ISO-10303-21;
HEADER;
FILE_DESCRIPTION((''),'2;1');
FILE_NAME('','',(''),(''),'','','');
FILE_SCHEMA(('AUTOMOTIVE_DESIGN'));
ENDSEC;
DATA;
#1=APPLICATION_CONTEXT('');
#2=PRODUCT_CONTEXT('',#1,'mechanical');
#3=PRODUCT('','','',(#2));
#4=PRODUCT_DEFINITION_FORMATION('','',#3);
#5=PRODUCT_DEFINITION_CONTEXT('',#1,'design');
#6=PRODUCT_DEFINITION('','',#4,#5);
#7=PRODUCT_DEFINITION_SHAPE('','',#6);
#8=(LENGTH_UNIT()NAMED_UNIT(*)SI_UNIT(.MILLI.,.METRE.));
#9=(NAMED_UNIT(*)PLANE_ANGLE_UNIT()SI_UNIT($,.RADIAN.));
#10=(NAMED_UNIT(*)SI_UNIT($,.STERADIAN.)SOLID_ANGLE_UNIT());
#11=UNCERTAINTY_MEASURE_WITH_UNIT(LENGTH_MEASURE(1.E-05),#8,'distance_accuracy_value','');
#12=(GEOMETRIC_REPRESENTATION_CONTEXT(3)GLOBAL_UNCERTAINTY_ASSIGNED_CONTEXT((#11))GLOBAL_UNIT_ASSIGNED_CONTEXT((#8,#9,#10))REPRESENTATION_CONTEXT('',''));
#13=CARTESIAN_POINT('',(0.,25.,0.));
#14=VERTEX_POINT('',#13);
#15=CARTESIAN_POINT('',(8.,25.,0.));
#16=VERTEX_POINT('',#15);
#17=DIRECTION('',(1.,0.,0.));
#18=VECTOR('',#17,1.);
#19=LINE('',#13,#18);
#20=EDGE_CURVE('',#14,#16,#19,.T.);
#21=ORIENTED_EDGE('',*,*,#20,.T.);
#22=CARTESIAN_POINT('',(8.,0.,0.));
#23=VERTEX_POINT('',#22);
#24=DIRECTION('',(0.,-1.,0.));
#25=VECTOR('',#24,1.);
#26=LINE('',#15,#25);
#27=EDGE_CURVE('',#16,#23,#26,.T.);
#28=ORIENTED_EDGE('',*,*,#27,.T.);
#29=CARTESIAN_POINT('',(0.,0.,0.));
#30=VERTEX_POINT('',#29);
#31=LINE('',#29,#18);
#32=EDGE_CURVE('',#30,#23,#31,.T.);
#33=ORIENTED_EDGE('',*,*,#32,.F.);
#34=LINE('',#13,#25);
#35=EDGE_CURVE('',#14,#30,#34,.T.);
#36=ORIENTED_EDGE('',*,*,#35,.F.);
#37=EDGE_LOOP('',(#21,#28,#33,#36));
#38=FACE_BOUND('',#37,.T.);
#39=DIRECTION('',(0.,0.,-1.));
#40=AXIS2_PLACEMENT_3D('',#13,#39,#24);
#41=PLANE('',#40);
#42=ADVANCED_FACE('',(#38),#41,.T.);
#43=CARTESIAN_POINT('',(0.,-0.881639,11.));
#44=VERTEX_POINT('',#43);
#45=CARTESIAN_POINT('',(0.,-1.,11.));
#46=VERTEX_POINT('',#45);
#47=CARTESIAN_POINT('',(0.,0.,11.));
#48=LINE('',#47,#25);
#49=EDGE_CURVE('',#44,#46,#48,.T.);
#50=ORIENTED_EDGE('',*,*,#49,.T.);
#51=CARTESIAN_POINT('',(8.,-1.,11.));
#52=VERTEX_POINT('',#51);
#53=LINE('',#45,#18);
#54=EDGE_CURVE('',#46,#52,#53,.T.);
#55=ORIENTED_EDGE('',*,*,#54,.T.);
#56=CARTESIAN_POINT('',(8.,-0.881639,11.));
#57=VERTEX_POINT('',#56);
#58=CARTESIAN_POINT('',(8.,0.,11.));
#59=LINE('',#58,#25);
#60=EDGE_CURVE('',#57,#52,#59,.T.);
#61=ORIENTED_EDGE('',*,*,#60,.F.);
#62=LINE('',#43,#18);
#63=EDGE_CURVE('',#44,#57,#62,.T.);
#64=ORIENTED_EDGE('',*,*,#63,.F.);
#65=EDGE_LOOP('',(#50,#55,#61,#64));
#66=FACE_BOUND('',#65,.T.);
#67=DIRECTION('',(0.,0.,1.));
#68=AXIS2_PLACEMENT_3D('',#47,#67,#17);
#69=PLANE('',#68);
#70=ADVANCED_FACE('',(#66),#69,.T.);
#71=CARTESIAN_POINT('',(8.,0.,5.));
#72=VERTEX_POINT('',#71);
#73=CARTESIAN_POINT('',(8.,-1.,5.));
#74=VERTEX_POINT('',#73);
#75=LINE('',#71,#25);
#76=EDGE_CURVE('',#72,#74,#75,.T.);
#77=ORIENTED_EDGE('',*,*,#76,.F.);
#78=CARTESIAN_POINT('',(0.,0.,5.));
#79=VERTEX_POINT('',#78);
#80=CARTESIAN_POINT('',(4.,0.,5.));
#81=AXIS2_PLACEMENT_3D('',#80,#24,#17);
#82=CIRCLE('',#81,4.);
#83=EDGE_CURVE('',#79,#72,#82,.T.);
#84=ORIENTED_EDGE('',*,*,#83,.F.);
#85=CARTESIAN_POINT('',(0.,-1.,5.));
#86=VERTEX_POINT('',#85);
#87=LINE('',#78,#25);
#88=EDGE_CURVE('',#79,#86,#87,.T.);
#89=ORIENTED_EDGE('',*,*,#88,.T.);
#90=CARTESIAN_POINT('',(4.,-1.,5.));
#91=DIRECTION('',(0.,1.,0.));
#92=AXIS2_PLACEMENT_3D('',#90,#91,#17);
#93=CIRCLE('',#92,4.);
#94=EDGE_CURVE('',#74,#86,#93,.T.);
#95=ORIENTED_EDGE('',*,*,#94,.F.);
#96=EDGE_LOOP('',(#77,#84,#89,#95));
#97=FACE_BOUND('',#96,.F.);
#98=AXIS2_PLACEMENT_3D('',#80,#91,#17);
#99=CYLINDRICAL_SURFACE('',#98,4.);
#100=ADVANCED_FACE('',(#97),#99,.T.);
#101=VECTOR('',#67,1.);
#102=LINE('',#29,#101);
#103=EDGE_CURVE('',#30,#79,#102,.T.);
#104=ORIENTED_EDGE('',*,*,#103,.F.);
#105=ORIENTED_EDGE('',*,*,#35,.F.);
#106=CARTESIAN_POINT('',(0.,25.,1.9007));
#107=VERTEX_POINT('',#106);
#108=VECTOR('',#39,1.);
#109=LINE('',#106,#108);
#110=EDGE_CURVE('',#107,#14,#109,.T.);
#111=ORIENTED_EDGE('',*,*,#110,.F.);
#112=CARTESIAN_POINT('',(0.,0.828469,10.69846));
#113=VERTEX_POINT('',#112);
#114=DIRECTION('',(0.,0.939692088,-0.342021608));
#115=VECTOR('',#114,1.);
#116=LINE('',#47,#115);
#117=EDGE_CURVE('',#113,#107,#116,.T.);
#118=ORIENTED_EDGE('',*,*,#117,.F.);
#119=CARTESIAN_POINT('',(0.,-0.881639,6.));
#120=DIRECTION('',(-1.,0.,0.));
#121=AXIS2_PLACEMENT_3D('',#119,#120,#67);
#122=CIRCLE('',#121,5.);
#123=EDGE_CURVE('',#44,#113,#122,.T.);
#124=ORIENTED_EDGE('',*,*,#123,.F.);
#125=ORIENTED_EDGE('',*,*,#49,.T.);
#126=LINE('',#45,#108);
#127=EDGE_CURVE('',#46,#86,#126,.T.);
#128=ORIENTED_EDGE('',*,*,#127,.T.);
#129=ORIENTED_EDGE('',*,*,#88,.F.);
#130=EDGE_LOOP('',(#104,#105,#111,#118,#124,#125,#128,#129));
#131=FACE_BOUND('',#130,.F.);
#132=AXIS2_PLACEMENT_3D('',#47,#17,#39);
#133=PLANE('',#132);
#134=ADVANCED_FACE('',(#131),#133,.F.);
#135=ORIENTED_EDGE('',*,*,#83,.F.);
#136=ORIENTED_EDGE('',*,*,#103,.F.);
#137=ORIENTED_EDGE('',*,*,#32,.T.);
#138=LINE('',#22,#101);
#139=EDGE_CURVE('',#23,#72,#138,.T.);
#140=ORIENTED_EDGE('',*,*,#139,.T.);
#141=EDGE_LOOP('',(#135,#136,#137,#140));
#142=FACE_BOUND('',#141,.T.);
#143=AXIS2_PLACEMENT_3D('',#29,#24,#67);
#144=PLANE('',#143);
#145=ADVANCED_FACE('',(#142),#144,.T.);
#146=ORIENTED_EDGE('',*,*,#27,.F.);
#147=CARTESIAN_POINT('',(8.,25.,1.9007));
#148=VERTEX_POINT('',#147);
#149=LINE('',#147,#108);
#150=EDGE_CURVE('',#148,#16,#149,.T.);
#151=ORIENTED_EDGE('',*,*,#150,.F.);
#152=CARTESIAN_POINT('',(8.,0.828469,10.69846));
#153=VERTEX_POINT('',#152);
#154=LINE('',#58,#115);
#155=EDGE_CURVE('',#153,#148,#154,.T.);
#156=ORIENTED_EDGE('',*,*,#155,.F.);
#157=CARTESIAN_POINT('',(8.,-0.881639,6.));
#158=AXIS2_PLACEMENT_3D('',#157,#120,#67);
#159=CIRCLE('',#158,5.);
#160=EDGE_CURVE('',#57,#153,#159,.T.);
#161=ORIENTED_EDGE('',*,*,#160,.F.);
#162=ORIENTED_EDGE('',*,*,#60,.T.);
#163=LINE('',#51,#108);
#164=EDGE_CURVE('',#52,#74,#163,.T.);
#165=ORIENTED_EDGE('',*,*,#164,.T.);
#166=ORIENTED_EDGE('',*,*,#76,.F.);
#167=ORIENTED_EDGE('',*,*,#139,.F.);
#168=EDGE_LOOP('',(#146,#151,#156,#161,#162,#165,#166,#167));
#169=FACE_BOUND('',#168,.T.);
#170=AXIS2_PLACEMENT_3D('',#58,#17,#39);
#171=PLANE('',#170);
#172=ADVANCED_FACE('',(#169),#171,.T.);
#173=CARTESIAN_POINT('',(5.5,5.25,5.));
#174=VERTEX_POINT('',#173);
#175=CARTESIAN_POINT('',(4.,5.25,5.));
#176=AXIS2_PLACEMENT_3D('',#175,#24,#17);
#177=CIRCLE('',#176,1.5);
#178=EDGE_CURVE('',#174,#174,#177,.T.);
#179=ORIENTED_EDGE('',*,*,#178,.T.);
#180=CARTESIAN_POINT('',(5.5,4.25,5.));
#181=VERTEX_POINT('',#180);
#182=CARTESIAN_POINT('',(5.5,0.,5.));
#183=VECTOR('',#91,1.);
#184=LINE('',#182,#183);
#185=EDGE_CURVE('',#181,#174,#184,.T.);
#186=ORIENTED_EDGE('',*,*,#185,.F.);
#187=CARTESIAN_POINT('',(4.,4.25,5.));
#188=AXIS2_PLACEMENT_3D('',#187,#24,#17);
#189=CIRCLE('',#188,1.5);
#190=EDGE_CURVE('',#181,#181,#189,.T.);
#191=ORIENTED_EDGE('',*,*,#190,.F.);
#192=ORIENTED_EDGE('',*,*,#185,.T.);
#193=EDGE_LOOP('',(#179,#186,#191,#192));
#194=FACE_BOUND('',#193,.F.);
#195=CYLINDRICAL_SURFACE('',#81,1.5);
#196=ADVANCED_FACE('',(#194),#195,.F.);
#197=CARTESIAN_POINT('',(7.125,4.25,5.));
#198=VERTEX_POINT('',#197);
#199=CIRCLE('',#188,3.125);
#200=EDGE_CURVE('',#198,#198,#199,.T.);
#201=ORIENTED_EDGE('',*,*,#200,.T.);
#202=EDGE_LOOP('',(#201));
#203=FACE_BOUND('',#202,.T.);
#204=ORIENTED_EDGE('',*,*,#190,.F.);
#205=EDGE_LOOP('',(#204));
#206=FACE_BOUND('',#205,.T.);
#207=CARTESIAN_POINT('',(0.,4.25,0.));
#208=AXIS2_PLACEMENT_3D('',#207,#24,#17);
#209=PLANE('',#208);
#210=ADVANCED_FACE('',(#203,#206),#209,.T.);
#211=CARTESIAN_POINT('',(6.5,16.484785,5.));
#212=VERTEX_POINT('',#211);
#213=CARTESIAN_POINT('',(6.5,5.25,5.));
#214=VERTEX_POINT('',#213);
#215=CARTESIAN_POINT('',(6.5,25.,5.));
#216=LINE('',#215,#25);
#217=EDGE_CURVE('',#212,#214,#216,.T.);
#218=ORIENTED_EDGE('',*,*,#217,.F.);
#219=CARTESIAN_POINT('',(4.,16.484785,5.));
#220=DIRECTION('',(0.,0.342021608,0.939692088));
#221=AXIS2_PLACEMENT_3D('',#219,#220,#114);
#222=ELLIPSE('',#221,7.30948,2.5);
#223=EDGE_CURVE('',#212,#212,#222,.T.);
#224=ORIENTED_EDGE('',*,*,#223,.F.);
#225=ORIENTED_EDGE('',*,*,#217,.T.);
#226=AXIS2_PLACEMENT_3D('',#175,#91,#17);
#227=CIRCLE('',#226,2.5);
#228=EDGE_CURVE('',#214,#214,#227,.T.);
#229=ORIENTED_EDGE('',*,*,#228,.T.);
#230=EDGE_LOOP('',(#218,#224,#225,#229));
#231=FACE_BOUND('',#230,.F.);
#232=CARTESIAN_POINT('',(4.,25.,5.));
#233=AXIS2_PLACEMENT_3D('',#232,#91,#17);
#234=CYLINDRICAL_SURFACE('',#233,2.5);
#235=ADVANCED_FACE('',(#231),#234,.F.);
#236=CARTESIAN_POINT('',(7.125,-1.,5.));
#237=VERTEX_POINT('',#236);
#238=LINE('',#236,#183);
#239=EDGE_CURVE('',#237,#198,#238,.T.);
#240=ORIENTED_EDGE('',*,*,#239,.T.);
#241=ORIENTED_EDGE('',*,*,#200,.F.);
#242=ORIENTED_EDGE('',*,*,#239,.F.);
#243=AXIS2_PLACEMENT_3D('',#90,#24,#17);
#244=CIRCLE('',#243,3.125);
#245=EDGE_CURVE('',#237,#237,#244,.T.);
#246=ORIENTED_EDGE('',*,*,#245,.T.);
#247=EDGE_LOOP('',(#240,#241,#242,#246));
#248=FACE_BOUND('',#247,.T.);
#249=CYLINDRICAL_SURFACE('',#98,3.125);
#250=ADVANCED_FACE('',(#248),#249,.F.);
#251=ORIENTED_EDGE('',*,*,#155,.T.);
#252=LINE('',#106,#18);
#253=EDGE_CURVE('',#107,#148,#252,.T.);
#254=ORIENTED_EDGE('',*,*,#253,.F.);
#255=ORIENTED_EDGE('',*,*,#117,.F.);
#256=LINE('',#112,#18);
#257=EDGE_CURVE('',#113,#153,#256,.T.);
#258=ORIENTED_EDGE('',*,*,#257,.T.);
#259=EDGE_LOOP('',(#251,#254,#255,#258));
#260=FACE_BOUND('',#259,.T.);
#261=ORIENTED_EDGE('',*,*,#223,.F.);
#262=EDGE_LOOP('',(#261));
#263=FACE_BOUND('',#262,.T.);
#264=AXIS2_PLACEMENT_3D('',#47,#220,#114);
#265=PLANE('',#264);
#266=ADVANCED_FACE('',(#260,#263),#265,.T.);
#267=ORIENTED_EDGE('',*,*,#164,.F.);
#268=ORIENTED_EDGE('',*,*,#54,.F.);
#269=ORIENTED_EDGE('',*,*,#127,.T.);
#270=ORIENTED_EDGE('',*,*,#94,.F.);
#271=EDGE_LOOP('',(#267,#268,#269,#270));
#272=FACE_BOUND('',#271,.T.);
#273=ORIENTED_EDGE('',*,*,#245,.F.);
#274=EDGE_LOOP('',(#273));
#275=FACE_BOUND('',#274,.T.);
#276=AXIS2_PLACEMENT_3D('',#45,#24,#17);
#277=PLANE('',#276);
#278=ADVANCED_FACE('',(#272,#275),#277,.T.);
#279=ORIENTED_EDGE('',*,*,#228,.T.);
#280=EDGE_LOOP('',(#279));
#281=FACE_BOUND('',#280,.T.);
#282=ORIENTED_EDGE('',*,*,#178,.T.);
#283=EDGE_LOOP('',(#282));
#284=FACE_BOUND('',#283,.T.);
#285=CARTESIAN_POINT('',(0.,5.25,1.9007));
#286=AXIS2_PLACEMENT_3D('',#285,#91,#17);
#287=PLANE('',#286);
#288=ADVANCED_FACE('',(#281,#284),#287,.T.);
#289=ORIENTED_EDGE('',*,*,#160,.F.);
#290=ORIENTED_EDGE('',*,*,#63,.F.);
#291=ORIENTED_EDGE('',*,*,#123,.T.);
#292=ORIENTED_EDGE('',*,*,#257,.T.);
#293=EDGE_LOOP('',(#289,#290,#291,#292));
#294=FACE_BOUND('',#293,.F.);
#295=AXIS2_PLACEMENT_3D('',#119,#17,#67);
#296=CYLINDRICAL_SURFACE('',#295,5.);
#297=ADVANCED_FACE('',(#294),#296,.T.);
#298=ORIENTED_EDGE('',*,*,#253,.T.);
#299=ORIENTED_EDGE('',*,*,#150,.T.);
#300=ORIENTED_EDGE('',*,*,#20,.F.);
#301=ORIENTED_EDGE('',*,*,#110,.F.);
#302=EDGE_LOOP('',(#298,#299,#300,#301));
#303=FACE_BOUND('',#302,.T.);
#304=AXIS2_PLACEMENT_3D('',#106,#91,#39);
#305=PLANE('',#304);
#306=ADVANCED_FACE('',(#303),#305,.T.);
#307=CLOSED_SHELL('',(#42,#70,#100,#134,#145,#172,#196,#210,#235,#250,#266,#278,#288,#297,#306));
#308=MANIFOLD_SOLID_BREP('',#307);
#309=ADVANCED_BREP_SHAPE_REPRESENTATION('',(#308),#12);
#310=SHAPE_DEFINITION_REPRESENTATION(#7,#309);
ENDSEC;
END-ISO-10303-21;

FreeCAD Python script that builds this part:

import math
import FreeCAD as App
import Part
import Sketcher
Q = App.Units.Quantity


def edges_at(feature, points):
    """Names of the edges that pass closest to the given points."""
    edges = feature.Shape.Edges
    near = lambda p: min(range(len(edges)), key=lambda i: edges[i].distToShape(Part.Vertex(*p))[0])
    return sorted({f"Edge{near(p) + 1}" for p in points})


def add_polygon(sketch, points):
    """Adds a closed chain of lines whose ends are joined by coincident constraints."""
    first, n = sketch.GeometryCount, len(points)
    for a, b in zip(points, points[1:] + points[:1]):
        sketch.addGeometry(Part.LineSegment(App.Vector(*a, 0), App.Vector(*b, 0)), False)
    for i in range(n):
        sketch.addConstraint(Sketcher.Constraint("Coincident", first + i, 2, first + (i + 1) % n, 1))

doc = App.newDocument("Part")
body = doc.addObject("PartDesign::Body", "Body")

# Sketch on YZ plane
sketch1 = body.newObject("Sketcher::SketchObject", "Sketch")
sketch1.AttachmentSupport = (doc.getObject("YZ_Plane"), [""])
sketch1.MapMode = "FlatFace"
add_polygon(sketch1, [(0, 11), (0, 0), (25, 0), (25, 1.9007)])  # lines 0-3
sketch1.addConstraint([
    Sketcher.Constraint("Vertical", 0),
    Sketcher.Constraint("Horizontal", 1),
    Sketcher.Constraint("Vertical", 2),
    Sketcher.Constraint("Coincident", 0, 2, -1, 1),
    Sketcher.Constraint("DistanceX", 1, 1, 1, 2, Q("25 mm")),
    Sketcher.Constraint("DistanceY", 0, 2, 0, 1, Q("11 mm")),
    Sketcher.Constraint("Angle", 3, Q("160 deg")),
])
pad1 = body.newObject("PartDesign::Pad", "Pad")
pad1.Profile = sketch1
pad1.Length = 8

# Sketch on XZ plane
sketch2 = body.newObject("Sketcher::SketchObject", "Sketch001")
sketch2.AttachmentSupport = (doc.getObject("XZ_Plane"), [""])
sketch2.MapMode = "FlatFace"
sketch2.addGeometry(Part.Circle(App.Vector(4, 5, 0), App.Vector(0, 0, 1), 1.5), False)
sketch2.addConstraint([
    Sketcher.Constraint("Diameter", 0, Q("3 mm")),
    Sketcher.Constraint("DistanceX", -1, 1, 0, 3, Q("4 mm")),
    Sketcher.Constraint("DistanceY", -1, 1, 0, 3, Q("5 mm")),
])
pocket1 = body.newObject("PartDesign::Pocket", "Pocket")
pocket1.Profile = sketch2
pocket1.Type = "ThroughAll"

# Sketch on XZ plane
sketch3 = body.newObject("Sketcher::SketchObject", "Sketch002")
sketch3.AttachmentSupport = (doc.getObject("XZ_Plane"), [""])
sketch3.MapMode = "FlatFace"
sketch3.addGeometry([
    Part.Circle(App.Vector(4, 5, 0), App.Vector(0, 0, 1), 3.125),
    Part.Circle(App.Vector(4, 5, 0), App.Vector(0, 0, 1), 1.5),
], False)
sketch3.addConstraint([
    Sketcher.Constraint("Coincident", 1, 3, 0, 3),
    Sketcher.Constraint("Diameter", 1, Q("3 mm")),
    Sketcher.Constraint("Diameter", 0, Q("6.25 mm")),
    Sketcher.Constraint("DistanceX", -1, 1, 0, 3, Q("4 mm")),
    Sketcher.Constraint("DistanceY", -1, 1, 0, 3, Q("5 mm")),
])
pocket2 = body.newObject("PartDesign::Pocket", "Pocket001")
pocket2.Profile = sketch3
pocket2.Length = 4.25

# Sketch on XZ plane
sketch4 = body.newObject("Sketcher::SketchObject", "Sketch003")
sketch4.AttachmentSupport = (doc.getObject("XZ_Plane"), [""])
sketch4.MapMode = "FlatFace"
sketch4.addGeometry([
    Part.Circle(App.Vector(4, 5, 0), App.Vector(0, 0, 1), 4),
    Part.Circle(App.Vector(4, 5, 0), App.Vector(0, 0, 1), 3.125),
], False)
sketch4.addConstraint([
    Sketcher.Constraint("Coincident", 1, 3, 0, 3),
    Sketcher.Constraint("Diameter", 1, Q("6.25 mm")),
    Sketcher.Constraint("Diameter", 0, Q("8 mm")),
    Sketcher.Constraint("DistanceX", -1, 1, 0, 3, Q("4 mm")),
    Sketcher.Constraint("DistanceY", -1, 1, 0, 3, Q("5 mm")),
])
pad2 = body.newObject("PartDesign::Pad", "Pad001")
pad2.Profile = sketch4
pad2.Length = 1

# Sketch on XZ plane
sketch5 = body.newObject("Sketcher::SketchObject", "Sketch004")
sketch5.AttachmentSupport = (doc.getObject("XZ_Plane"), [""])
sketch5.MapMode = "FlatFace"
sketch5.AttachmentOffset = App.Placement(App.Vector(0, 0, -25), App.Rotation())
sketch5.addGeometry(Part.Circle(App.Vector(4, 5, 0), App.Vector(0, 0, 1), 2.5), False)
sketch5.addConstraint([
    Sketcher.Constraint("Diameter", 0, Q("5 mm")),
    Sketcher.Constraint("DistanceY", -1, 1, 0, 3, Q("5 mm")),
    Sketcher.Constraint("DistanceX", -1, 1, 0, 3, Q("4 mm")),
])
pocket3 = body.newObject("PartDesign::Pocket", "Pocket002")
pocket3.Profile = sketch5
pocket3.Length = 19.75
pocket3.Reversed = True

# Sketch on XZ plane
sketch6 = body.newObject("Sketcher::SketchObject", "Sketch005")
sketch6.AttachmentSupport = (doc.getObject("XZ_Plane"), [""])
sketch6.MapMode = "FlatFace"
sketch6.addGeometry([
    Part.ArcOfCircle(Part.Circle(App.Vector(4, 5, 0), App.Vector(0, 0, 1), 4), math.radians(0), math.radians(180)),
    Part.LineSegment(App.Vector(8, 5, 0), App.Vector(8, 11, 0)),
    Part.LineSegment(App.Vector(8, 11, 0), App.Vector(0, 11, 0)),
    Part.LineSegment(App.Vector(0, 11, 0), App.Vector(0, 5, 0)),
], False)
sketch6.addConstraint([
    Sketcher.Constraint("Tangent", 0, 1, 1, 1),
    Sketcher.Constraint("Coincident", 1, 2, 2, 1),
    Sketcher.Constraint("Coincident", 2, 2, 3, 1),
    Sketcher.Constraint("Tangent", 3, 2, 0, 2),
    Sketcher.Constraint("Vertical", 1),
    Sketcher.Constraint("Horizontal", 2),
    Sketcher.Constraint("Vertical", 3),
    Sketcher.Constraint("PointOnObject", 2, 2, -2),
    Sketcher.Constraint("Radius", 0, Q("4 mm")),
    Sketcher.Constraint("DistanceY", 1, 1, 1, 2, Q("6 mm")),
    Sketcher.Constraint("DistanceY", -1, 1, 0, 3, Q("5 mm")),
])
pad3 = body.newObject("PartDesign::Pad", "Pad002")
pad3.Profile = sketch6
pad3.Length = 1
doc.recompute()

fillet = body.newObject("PartDesign::Fillet", "Fillet")
fillet.Base = (pad3, edges_at(pad3, [(4, 0, 11)]))
fillet.Radius = 5

doc.recompute()
